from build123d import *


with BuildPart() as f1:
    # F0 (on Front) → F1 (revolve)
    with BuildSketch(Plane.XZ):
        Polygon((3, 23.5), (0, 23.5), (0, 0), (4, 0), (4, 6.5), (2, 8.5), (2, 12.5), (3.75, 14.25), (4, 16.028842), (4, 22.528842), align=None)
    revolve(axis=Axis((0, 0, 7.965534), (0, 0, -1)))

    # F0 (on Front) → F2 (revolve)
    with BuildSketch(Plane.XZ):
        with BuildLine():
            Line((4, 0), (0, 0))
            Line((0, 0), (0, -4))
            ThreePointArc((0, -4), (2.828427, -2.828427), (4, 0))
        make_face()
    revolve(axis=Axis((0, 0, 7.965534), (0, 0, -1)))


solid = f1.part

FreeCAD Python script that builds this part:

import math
import FreeCAD as App
import Part
import Sketcher

V = App.Vector
Q = App.Units.Quantity

doc = App.newDocument("Part")
body = doc.addObject("PartDesign::Body", "Body")

# Sketch on XZ plane
sketch1 = body.newObject("Sketcher::SketchObject", "Sketch")
sketch1.AttachmentSupport = (doc.getObject("XZ_Plane"), [""])
sketch1.MapMode = "FlatFace"
sketch1.addGeometry([
    Part.LineSegment(V(3, 23.5, 0), V(0, 23.5, 0)),  # 0
    Part.LineSegment(V(0, 23.5, 0), V(0, 0, 0)),  # 1
    Part.LineSegment(V(0, 0, 0), V(4, 0, 0)),  # 2
    Part.LineSegment(V(4, 0, 0), V(4, 6.5, 0)),  # 3
    Part.LineSegment(V(4, 6.5, 0), V(2, 8.5, 0)),  # 4
    Part.LineSegment(V(2, 8.5, 0), V(2, 12.5, 0)),  # 5
    Part.LineSegment(V(2, 12.5, 0), V(3.8, 14.2, 0)),  # 6
    Part.LineSegment(V(3.8, 14.2, 0), V(4, 16, 0)),  # 7
    Part.LineSegment(V(4, 16, 0), V(4, 22.5, 0)),  # 8
    Part.LineSegment(V(4, 22.5, 0), V(3, 23.5, 0)),  # 9
], False)
sketch1.addConstraint([
    Sketcher.Constraint("Coincident", 0, 2, 1, 1),
    Sketcher.Constraint("Coincident", 1, 2, 2, 1),
    Sketcher.Constraint("Coincident", 2, 2, 3, 1),
    Sketcher.Constraint("Coincident", 3, 2, 4, 1),
    Sketcher.Constraint("Coincident", 4, 2, 5, 1),
    Sketcher.Constraint("Coincident", 5, 2, 6, 1),
    Sketcher.Constraint("Coincident", 6, 2, 7, 1),
    Sketcher.Constraint("Coincident", 7, 2, 8, 1),
    Sketcher.Constraint("Coincident", 8, 2, 9, 1),
    Sketcher.Constraint("Coincident", 9, 2, 0, 1),
    Sketcher.Constraint("Horizontal", 0),
    Sketcher.Constraint("Vertical", 1),
    Sketcher.Constraint("Horizontal", 2),
    Sketcher.Constraint("Vertical", 3),
    Sketcher.Constraint("Vertical", 5),
    Sketcher.Constraint("Vertical", 8),
    Sketcher.Constraint("Coincident", 1, 2, -1, 1),
    Sketcher.Constraint("Perpendicular", 4, 6),
    Sketcher.Constraint("Vertical", 3, 2, 7, 2),
    Sketcher.Constraint("Equal", 2, 5),
    Sketcher.Constraint("Equal", 3, 8),
    Sketcher.Constraint("DistanceX", 0, 2, 0, 1, Q("3 mm")),
    Sketcher.Constraint("DistanceX", 2, 1, 2, 2, Q("4 mm")),
    Sketcher.Constraint("Angle", 4, Q("135 deg")),
    Sketcher.Constraint("Angle", 7, Q("81.999998 deg")),
    Sketcher.Constraint("DistanceY", 1, 2, 1, 1, Q("23.5 mm")),
    Sketcher.Constraint("DistanceY", 3, 1, 3, 2, Q("6.5 mm")),
    Sketcher.Constraint("DistanceX", -1, 1, 4, 2, Q("2 mm")),
    Sketcher.Constraint("DistanceX", -1, 1, 6, 2, Q("3.75 mm")),
])
revolution = body.newObject("PartDesign::Revolution", "Revolution")
revolution.Profile = sketch1
revolution.ReferenceAxis = (sketch1, ["V_Axis"])
revolution.Angle = 360

# Sketch on XZ plane
sketch2 = body.newObject("Sketcher::SketchObject", "Sketch001")
sketch2.AttachmentSupport = (doc.getObject("XZ_Plane"), [""])
sketch2.MapMode = "FlatFace"
sketch2.addGeometry([
    Part.LineSegment(V(4, 0, 0), V(0, 0, 0)),
    Part.LineSegment(V(0, 0, 0), V(0, -4, 0)),
    Part.ArcOfCircle(Part.Circle(V(0, 0, 0), V(0, 0, 1), 4), math.radians(-90), math.radians(0)),
], False)
sketch2.addConstraint([
    Sketcher.Constraint("Coincident", 0, 2, 1, 1),
    Sketcher.Constraint("Coincident", 1, 2, 2, 1),
    Sketcher.Constraint("Coincident", 2, 2, 0, 1),
    Sketcher.Constraint("Horizontal", 0),
    Sketcher.Constraint("Vertical", 1),
    Sketcher.Constraint("Coincident", 2, 3, -1, 1),
    Sketcher.Constraint("Coincident", 0, 2, -1, 1),
    Sketcher.Constraint("Radius", 2, Q("4 mm")),
])
revolution2 = body.newObject("PartDesign::Revolution", "Revolution001")
revolution2.Profile = sketch2
revolution2.ReferenceAxis = (sketch2, ["V_Axis"])
revolution2.Angle = 360

doc.recompute()
